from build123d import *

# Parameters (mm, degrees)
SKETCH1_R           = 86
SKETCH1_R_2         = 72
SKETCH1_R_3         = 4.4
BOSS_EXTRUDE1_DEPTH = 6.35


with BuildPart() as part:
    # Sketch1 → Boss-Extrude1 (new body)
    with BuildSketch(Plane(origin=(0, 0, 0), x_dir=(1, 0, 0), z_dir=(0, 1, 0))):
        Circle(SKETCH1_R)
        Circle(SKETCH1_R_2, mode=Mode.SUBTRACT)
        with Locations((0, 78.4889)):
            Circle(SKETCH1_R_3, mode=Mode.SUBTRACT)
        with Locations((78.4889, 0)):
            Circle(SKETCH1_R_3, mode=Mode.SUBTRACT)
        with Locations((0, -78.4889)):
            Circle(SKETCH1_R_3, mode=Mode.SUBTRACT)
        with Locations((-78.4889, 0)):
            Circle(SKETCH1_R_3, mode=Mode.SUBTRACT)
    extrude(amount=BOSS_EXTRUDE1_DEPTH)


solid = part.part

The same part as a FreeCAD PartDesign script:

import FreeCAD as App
import Part
import Sketcher
from FreeCAD import Vector
Q = App.Units.Quantity

doc = App.newDocument("Part")
body = doc.addObject("PartDesign::Body", "Body")

# Sketch on XZ plane
sketch1 = body.newObject("Sketcher::SketchObject", "Sketch")
sketch1.AttachmentSupport = (doc.getObject("XZ_Plane"), [""])
sketch1.MapMode = "FlatFace"
sketch1.addGeometry([
    Part.Circle(Vector(0, 0, 0), Vector(0, 0, 1), 86),  # 0
    Part.Circle(Vector(0, 78.5, 0), Vector(0, 0, 1), 4.4),  # 1
    Part.Circle(Vector(-78.5, 0, 0), Vector(0, 0, 1), 4.4),  # 2
    Part.Circle(Vector(0, 0, 0), Vector(0, 0, 1), 72),  # 3
    Part.Circle(Vector(78.5, 0, 0), Vector(0, 0, 1), 4.4),  # 4
    Part.Circle(Vector(0, -78.5, 0), Vector(0, 0, 1), 4.4),  # 5
], False)
sketch1.addConstraint([
    Sketcher.Constraint("Coincident", 0, 3, -1, 1),
    Sketcher.Constraint("Coincident", 3, 3, -1, 1),
    Sketcher.Constraint("Equal", 1, 2),
    Sketcher.Constraint("Equal", 2, 4),
    Sketcher.Constraint("Equal", 4, 5),
    Sketcher.Constraint("Symmetric", 2, 3, 4, 3, -1, 1),
    Sketcher.Constraint("Symmetric", 1, 3, 5, 3, -1, 1),
    Sketcher.Constraint("PointOnObject", 1, 3, -2),
    Sketcher.Constraint("PointOnObject", 2, 3, -1),
    Sketcher.Constraint("Diameter", 0, Q("172 mm")),
    Sketcher.Constraint("Diameter", 3, Q("144 mm")),
    Sketcher.Constraint("Diameter", 1, Q("8.8 mm")),
    Sketcher.Constraint("DistanceY", -1, 1, 1, 3, Q("78.4889 mm")),
    Sketcher.Constraint("DistanceX", 2, 3, -1, 1, Q("78.4889 mm")),
])
pad1 = body.newObject("PartDesign::Pad", "Pad")
pad1.Profile = sketch1
pad1.Length = 6.35
pad1.Reversed = True

doc.recompute()
